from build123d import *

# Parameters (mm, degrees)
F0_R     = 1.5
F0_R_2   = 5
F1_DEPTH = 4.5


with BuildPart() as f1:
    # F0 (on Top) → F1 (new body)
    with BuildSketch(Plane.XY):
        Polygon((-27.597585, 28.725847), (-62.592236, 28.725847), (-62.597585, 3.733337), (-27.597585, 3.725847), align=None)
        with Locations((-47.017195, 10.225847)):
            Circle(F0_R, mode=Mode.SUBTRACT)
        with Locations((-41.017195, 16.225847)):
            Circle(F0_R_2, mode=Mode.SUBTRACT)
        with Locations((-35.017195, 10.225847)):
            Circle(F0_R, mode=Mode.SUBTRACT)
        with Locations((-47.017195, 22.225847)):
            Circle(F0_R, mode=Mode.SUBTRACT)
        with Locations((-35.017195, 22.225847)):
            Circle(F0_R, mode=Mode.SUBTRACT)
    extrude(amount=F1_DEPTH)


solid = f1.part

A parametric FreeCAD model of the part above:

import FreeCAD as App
import Part
import Sketcher
from FreeCAD import Vector


def add_polygon(sketch, points):
    """Adds a closed chain of lines whose ends are joined by coincident constraints."""
    first, n = sketch.GeometryCount, len(points)
    for a, b in zip(points, points[1:] + points[:1]):
        sketch.addGeometry(Part.LineSegment(App.Vector(*a, 0), App.Vector(*b, 0)), False)
    for i in range(n):
        sketch.addConstraint(Sketcher.Constraint("Coincident", first + i, 2, first + (i + 1) % n, 1))

doc = App.newDocument("Part")
body = doc.addObject("PartDesign::Body", "Body")

sketch1 = body.newObject("Sketcher::SketchObject", "Sketch")
sketch1.AttachmentSupport = (doc.getObject("XY_Plane"), [""])
sketch1.MapMode = "FlatFace"
add_polygon(sketch1, [(-27.6, 28.7), (-62.6, 28.7), (-62.6, 3.7), (-27.6, 3.7)])
sketch1.addGeometry(Part.Circle(Vector(-47, 10.2, 0), Vector(0, 0, 1), 1.5), False)
sketch1.addGeometry(Part.Circle(Vector(-35, 10.2, 0), Vector(0, 0, 1), 1.5), False)
sketch1.addGeometry(Part.Circle(Vector(-47, 22.2, 0), Vector(0, 0, 1), 1.5), False)
sketch1.addGeometry(Part.Circle(Vector(-41, 16.2, 0), Vector(0, 0, 1), 5), False)
sketch1.addGeometry(Part.Circle(Vector(-35, 22.2, 0), Vector(0, 0, 1), 1.5), False)
sketch1.addConstraint(Sketcher.Constraint("Horizontal", 0))
sketch1.addConstraint(Sketcher.Constraint("Vertical", 3))
sketch1.addConstraint(Sketcher.Constraint("Equal", 4, 5))
sketch1.addConstraint(Sketcher.Constraint("Equal", 5, 6))
sketch1.addConstraint(Sketcher.Constraint("Equal", 6, 8))
sketch1.addConstraint(Sketcher.Constraint("Perpendicular", 1, 2))
sketch1.addConstraint(Sketcher.Constraint("Horizontal", 4, 3, 5, 3))
sketch1.addConstraint(Sketcher.Constraint("Horizontal", 6, 3, 8, 3))
sketch1.addConstraint(Sketcher.Constraint("Vertical", 4, 3, 6, 3))
sketch1.addConstraint(Sketcher.Constraint("Vertical", 5, 3, 8, 3))
sketch1.addConstraint(Sketcher.Constraint("Diameter", 4, 3.0))
sketch1.addConstraint(Sketcher.Constraint("Diameter", 7, 10.0))
sketch1.addConstraint(Sketcher.Constraint("DistanceY", 3, 1, 3, 2, 25.0))
sketch1.addConstraint(Sketcher.Constraint("Distance", 2, 35.000001))
sketch1.addConstraint(Sketcher.Constraint("DistanceX", 4, 3, 5, 3, 12.0))
sketch1.addConstraint(Sketcher.Constraint("DistanceY", 4, 3, 6, 3, 12.0))
sketch1.addConstraint(Sketcher.Constraint("DistanceX", 6, 3, 7, 3, 6.0))
sketch1.addConstraint(Sketcher.Constraint("DistanceY", 7, 3, 6, 3, 6.0))
sketch1.addConstraint(Sketcher.Constraint("DistanceY", 6, 3, 0, 2, 6.5))
sketch1.addConstraint(Sketcher.Constraint("DistanceX", 0, 2, 0, 1, 34.994651))
sketch1.addConstraint(Sketcher.Constraint("DistanceX", 0, 2, 6, 3, 15.575041))
sketch1.addConstraint(Sketcher.Constraint("DistanceX", 4, 3, -1, 1, 47.017195))
sketch1.addConstraint(Sketcher.Constraint("DistanceY", -1, 1, 4, 3, 10.225847))
pad1 = body.newObject("PartDesign::Pad", "Pad")
pad1.Profile = sketch1
pad1.Length = 4.5

doc.recompute()
